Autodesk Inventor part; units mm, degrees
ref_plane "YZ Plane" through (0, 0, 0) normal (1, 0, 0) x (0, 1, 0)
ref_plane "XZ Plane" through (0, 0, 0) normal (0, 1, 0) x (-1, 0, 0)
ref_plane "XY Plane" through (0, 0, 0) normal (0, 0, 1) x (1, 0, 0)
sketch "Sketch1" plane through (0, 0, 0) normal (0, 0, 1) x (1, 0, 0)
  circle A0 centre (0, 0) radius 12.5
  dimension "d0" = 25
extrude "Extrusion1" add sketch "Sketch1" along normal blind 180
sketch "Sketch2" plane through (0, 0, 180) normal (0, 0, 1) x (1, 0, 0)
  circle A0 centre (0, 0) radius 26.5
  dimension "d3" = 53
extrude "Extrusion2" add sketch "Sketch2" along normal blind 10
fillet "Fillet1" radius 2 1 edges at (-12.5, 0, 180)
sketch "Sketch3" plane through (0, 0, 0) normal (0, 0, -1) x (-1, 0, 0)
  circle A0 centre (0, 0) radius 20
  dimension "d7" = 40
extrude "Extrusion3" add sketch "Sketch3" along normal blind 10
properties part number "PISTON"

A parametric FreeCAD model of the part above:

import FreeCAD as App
import Part
import Sketcher
Q = App.Units.Quantity


def edges_at(feature, points):
    """Names of the edges that pass closest to the given points."""
    edges = feature.Shape.Edges
    near = lambda p: min(range(len(edges)), key=lambda i: edges[i].distToShape(Part.Vertex(*p))[0])
    return sorted({f"Edge{near(p) + 1}" for p in points})

doc = App.newDocument("Part")
body = doc.addObject("PartDesign::Body", "Body")

# Sketch on XY plane
sketch1 = doc.addObject("Sketcher::SketchObject", "Sketch")
body.addObject(sketch1)
sketch1.AttachmentSupport = (doc.XY_Plane, [""])
sketch1.MapMode = "FlatFace"
sketch1.addGeometry(Part.Circle(App.Vector(0, 0, 0), App.Vector(0, 0, 1), 12), False)
sketch1.addConstraint([
    Sketcher.Constraint("Coincident", 0, 3, -1, 1),
    Sketcher.Constraint("Diameter", 0, Q("25 mm")),
])
pad1 = doc.addObject("PartDesign::Pad", "Pad")
body.addObject(pad1)
pad1.Profile = sketch1
pad1.Length = 180

# Sketch on XY plane
sketch2 = doc.addObject("Sketcher::SketchObject", "Sketch001")
body.addObject(sketch2)
sketch2.AttachmentSupport = (doc.XY_Plane, [""])
sketch2.MapMode = "FlatFace"
sketch2.AttachmentOffset = App.Placement(App.Vector(0, 0, 180), App.Rotation())
sketch2.addGeometry(Part.Circle(App.Vector(0, 0, 0), App.Vector(0, 0, 1), 26), False)
sketch2.addConstraint([
    Sketcher.Constraint("Coincident", 0, 3, -1, 1),
    Sketcher.Constraint("Diameter", 0, Q("53 mm")),
])
pad2 = doc.addObject("PartDesign::Pad", "Pad001")
body.addObject(pad2)
pad2.Profile = sketch2
pad2.Length = 10
doc.recompute()

fillet = doc.addObject("PartDesign::Fillet", "Fillet")
body.addObject(fillet)
fillet.Base = (pad2, edges_at(pad2, [(-12.5, 0, 180)]))
fillet.Radius = 2

# Sketch on XY plane
sketch3 = doc.addObject("Sketcher::SketchObject", "Sketch002")
body.addObject(sketch3)
sketch3.AttachmentSupport = (doc.XY_Plane, [""])
sketch3.MapMode = "FlatFace"
sketch3.addGeometry(Part.Circle(App.Vector(0, 0, 0), App.Vector(0, 0, 1), 20), False)
sketch3.addConstraint([
    Sketcher.Constraint("Coincident", 0, 3, -1, 1),
    Sketcher.Constraint("Diameter", 0, Q("40 mm")),
])
pad3 = doc.addObject("PartDesign::Pad", "Pad002")
body.addObject(pad3)
pad3.Profile = sketch3
pad3.Length = 10
pad3.Reversed = True

doc.recompute()
